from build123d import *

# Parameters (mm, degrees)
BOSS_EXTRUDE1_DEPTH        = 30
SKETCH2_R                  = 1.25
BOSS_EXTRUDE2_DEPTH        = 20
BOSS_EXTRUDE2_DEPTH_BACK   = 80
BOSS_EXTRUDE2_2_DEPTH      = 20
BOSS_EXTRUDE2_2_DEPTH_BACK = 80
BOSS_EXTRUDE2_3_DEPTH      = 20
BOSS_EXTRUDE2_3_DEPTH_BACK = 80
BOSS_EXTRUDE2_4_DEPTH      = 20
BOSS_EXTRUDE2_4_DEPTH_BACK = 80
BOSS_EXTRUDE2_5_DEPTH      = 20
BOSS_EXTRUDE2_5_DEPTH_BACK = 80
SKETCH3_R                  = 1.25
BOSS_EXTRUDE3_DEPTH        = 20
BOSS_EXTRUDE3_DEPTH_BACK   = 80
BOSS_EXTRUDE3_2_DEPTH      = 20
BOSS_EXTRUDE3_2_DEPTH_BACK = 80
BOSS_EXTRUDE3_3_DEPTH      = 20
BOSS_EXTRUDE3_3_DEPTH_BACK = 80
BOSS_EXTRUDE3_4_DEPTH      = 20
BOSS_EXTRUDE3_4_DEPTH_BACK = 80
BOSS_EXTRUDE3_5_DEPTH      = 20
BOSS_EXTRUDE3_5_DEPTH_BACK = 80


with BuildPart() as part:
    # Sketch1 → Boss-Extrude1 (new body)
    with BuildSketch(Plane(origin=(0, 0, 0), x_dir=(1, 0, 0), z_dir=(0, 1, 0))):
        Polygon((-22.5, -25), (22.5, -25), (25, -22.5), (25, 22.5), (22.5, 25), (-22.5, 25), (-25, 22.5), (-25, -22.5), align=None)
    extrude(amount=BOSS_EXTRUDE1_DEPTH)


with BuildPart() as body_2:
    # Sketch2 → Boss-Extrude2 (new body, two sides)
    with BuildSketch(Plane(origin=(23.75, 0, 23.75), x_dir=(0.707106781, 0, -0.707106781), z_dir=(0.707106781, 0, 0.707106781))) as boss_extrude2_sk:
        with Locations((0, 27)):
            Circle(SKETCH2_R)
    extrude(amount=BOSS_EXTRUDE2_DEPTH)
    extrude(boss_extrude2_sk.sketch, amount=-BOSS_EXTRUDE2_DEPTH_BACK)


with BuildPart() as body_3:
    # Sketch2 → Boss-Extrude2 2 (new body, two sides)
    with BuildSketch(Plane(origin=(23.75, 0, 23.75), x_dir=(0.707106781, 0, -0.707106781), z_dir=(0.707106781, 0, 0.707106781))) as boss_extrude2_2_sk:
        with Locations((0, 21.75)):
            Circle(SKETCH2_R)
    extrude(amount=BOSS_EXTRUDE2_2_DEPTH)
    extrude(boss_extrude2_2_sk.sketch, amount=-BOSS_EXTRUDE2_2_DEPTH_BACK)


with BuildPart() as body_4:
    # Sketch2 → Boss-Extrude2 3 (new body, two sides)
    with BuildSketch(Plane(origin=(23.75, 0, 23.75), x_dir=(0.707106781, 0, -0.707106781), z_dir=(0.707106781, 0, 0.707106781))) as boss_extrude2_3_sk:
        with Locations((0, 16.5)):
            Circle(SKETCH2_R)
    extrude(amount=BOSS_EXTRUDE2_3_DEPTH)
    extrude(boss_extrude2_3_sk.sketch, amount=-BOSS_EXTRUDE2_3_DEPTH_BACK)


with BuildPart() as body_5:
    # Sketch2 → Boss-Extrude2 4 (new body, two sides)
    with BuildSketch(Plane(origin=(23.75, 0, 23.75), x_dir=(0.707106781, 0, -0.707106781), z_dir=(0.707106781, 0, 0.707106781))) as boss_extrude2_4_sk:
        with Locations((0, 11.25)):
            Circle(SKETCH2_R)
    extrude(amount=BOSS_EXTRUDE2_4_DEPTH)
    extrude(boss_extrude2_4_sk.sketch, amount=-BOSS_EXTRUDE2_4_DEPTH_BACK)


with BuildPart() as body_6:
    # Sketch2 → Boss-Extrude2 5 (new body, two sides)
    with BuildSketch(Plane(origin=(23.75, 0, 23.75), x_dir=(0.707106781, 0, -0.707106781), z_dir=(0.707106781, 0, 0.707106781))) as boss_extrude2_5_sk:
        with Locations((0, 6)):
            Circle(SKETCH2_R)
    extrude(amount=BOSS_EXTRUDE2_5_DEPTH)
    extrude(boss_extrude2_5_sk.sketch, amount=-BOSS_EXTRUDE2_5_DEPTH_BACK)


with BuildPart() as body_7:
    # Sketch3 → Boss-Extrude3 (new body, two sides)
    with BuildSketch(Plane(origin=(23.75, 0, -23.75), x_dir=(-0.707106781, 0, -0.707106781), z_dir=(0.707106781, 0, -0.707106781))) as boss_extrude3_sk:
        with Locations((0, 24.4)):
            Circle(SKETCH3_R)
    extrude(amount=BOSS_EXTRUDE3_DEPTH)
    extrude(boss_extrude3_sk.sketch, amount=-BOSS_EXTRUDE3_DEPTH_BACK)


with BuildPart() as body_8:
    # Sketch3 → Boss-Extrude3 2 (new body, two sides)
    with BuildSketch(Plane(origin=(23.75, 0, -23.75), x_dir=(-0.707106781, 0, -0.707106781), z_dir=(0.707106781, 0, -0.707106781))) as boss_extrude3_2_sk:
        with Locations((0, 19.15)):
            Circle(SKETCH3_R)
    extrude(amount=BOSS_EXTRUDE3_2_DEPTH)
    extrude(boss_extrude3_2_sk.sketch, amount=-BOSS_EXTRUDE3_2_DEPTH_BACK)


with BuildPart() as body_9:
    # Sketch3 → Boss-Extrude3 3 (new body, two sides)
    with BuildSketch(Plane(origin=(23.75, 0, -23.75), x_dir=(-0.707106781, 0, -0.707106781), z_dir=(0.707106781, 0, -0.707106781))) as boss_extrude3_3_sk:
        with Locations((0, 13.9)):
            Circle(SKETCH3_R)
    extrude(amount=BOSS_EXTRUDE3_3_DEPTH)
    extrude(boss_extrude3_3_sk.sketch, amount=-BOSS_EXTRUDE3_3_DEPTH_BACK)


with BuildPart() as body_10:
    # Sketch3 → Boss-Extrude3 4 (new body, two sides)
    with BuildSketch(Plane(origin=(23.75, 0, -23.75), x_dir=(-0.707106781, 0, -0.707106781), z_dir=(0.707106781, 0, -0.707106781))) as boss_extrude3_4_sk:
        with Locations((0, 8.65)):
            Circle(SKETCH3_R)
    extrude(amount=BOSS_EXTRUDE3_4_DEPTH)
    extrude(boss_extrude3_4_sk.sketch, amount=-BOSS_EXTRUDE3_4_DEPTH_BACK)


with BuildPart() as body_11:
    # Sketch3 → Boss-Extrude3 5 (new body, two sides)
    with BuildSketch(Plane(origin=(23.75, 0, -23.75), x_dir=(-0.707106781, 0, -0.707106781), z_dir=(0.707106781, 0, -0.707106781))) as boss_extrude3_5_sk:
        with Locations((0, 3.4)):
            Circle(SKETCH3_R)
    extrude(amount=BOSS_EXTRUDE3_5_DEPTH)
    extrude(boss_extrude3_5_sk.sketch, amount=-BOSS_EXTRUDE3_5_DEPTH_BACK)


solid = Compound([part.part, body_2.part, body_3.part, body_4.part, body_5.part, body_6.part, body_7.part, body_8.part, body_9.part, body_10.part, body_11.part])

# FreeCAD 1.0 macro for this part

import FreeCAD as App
import Part
import Sketcher
Q = App.Units.Quantity


def add_polygon(sketch, points):
    """Adds a closed chain of lines whose ends are joined by coincident constraints."""
    first, n = sketch.GeometryCount, len(points)
    for a, b in zip(points, points[1:] + points[:1]):
        sketch.addGeometry(Part.LineSegment(App.Vector(*a, 0), App.Vector(*b, 0)), False)
    for i in range(n):
        sketch.addConstraint(Sketcher.Constraint("Coincident", first + i, 2, first + (i + 1) % n, 1))

doc = App.newDocument("Part")
params = doc.addObject("Spreadsheet::Sheet", "Params")
for row, (alias, value) in enumerate([
    ("sketch1_width", "45 mm"),
    ("pad1_length", "30 mm"),
    ("sketch2_diameter", "2.5 mm"),
    ("pad2_length", "20 mm"),
    ("pad2_length2", "80 mm"),
    ("sketch3_diameter", "2.5 mm"),
    ("pad3_length", "20 mm"),
    ("pad3_length2", "80 mm"),
    ("sketch4_diameter", "2.5 mm"),
    ("pad4_length", "20 mm"),
    ("pad4_length2", "80 mm"),
    ("sketch5_diameter", "2.5 mm"),
    ("pad5_length", "20 mm"),
    ("pad5_length2", "80 mm"),
    ("sketch6_diameter", "2.5 mm"),
    ("pad6_length", "20 mm"),
    ("pad6_length2", "80 mm"),
    ("sketch7_diameter", "2.5 mm"),
    ("pad7_length", "20 mm"),
    ("pad7_length2", "80 mm"),
    ("sketch8_diameter", "2.5 mm"),
    ("pad8_length", "20 mm"),
    ("pad8_length2", "80 mm"),
    ("sketch9_diameter", "2.5 mm"),
    ("pad9_length", "20 mm"),
    ("pad9_length2", "80 mm"),
    ("sketch10_diameter", "2.5 mm"),
    ("pad10_length", "20 mm"),
    ("pad10_length2", "80 mm"),
    ("sketch11_diameter", "2.5 mm"),
    ("pad11_length", "20 mm"),
    ("pad11_length2", "80 mm"),
], start=1):
    params.set(f"A{row}", alias)
    params.set(f"B{row}", "=" + value)
    params.setAlias(f"B{row}", alias)

body = doc.addObject("PartDesign::Body", "Body")

# Sketch on XZ plane
sketch1 = body.newObject("Sketcher::SketchObject", "Sketch")
sketch1.AttachmentSupport = (doc.getObject("XZ_Plane"), [""])
sketch1.MapMode = "FlatFace"
add_polygon(sketch1, [(-22.5, 25), (22.5, 25), (25, 22.5), (25, -22.5), (22.5, -25), (-22.5, -25), (-25, -22.5), (-25, 22.5)])  # lines 0-7
sketch1.addConstraint([
    Sketcher.Constraint("Horizontal", 0),
    Sketcher.Constraint("Vertical", 2),
    Sketcher.Constraint("Horizontal", 4),
    Sketcher.Constraint("Vertical", 6),
    Sketcher.Constraint("Symmetric", 0, 2, 4, 2, -1, 1),
    Sketcher.Constraint("Symmetric", 1, 2, 5, 2, -1, 1),
    Sketcher.Constraint("Perpendicular", 1, 3),
    Sketcher.Constraint("Perpendicular", 5, 7),
    Sketcher.Constraint("Horizontal", 2, 2, 5, 2),
    Sketcher.Constraint("Horizontal", 1, 2, 6, 2),
    Sketcher.Constraint("Vertical", 0, 2, 3, 2),
    Sketcher.Constraint("Equal", 4, 2),
    Sketcher.Constraint("DistanceX", 0, 1, 0, 2, Q("45 mm")),
    Sketcher.Constraint("DistanceY", -1, 1, 0, 2, Q("25 mm")),
])
sketch1.setExpression("Constraints[20]", "Params.sketch1_width")
pad1 = body.newObject("PartDesign::Pad", "Pad")
pad1.Profile = sketch1
pad1.setExpression("Length", "Params.pad1_length")
pad1.Reversed = True
body2 = doc.addObject("PartDesign::Body", "Body001")

# Sketch on an angled plane
sketch2 = body2.newObject("Sketcher::SketchObject", "Sketch001")
sketch2.Placement = App.Placement(App.Vector(23.75, 0, 23.75), App.Rotation(App.Vector(0.707106781, 0, -0.707106781), App.Vector(0, 0.999999999, 0), App.Vector(0.707106781, 0, 0.707106781), "ZXY"))
sketch2.addGeometry(Part.Circle(App.Vector(0, 27, 0), App.Vector(0, 0, 1), 1.2), False)
sketch2.addConstraint([
    Sketcher.Constraint("PointOnObject", 0, 3, -2),
    Sketcher.Constraint("Diameter", 0, Q("2.5 mm")),
    Sketcher.Constraint("DistanceY", -1, 1, 0, 3, Q("27 mm")),
])
sketch2.setExpression("Constraints[1]", "Params.sketch2_diameter")
pad2 = body2.newObject("PartDesign::Pad", "Pad001")
pad2.Profile = sketch2
pad2.Type = "TwoLengths"
pad2.setExpression("Length", "Params.pad2_length")
pad2.setExpression("Length2", "Params.pad2_length2")
body3 = doc.addObject("PartDesign::Body", "Body002")

# Sketch on an angled plane
sketch3 = body3.newObject("Sketcher::SketchObject", "Sketch002")
sketch3.Placement = App.Placement(App.Vector(23.75, 0, 23.75), App.Rotation(App.Vector(0.707106781, 0, -0.707106781), App.Vector(0, 0.999999999, 0), App.Vector(0.707106781, 0, 0.707106781), "ZXY"))
sketch3.addGeometry(Part.Circle(App.Vector(0, 21.7, 0), App.Vector(0, 0, 1), 1.2), False)
sketch3.addConstraint([
    Sketcher.Constraint("PointOnObject", 0, 3, -2),
    Sketcher.Constraint("Diameter", 0, Q("2.5 mm")),
    Sketcher.Constraint("DistanceY", -1, 1, 0, 3, Q("21.75 mm")),
])
sketch3.setExpression("Constraints[1]", "Params.sketch3_diameter")
pad3 = body3.newObject("PartDesign::Pad", "Pad002")
pad3.Profile = sketch3
pad3.Type = "TwoLengths"
pad3.setExpression("Length", "Params.pad3_length")
pad3.setExpression("Length2", "Params.pad3_length2")
body4 = doc.addObject("PartDesign::Body", "Body003")

# Sketch on an angled plane
sketch4 = body4.newObject("Sketcher::SketchObject", "Sketch003")
sketch4.Placement = App.Placement(App.Vector(23.75, 0, 23.75), App.Rotation(App.Vector(0.707106781, 0, -0.707106781), App.Vector(0, 0.999999999, 0), App.Vector(0.707106781, 0, 0.707106781), "ZXY"))
sketch4.addGeometry(Part.Circle(App.Vector(0, 16.5, 0), App.Vector(0, 0, 1), 1.2), False)
sketch4.addConstraint([
    Sketcher.Constraint("PointOnObject", 0, 3, -2),
    Sketcher.Constraint("Diameter", 0, Q("2.5 mm")),
    Sketcher.Constraint("DistanceY", -1, 1, 0, 3, Q("16.5 mm")),
])
sketch4.setExpression("Constraints[1]", "Params.sketch4_diameter")
pad4 = body4.newObject("PartDesign::Pad", "Pad003")
pad4.Profile = sketch4
pad4.Type = "TwoLengths"
pad4.setExpression("Length", "Params.pad4_length")
pad4.setExpression("Length2", "Params.pad4_length2")
body5 = doc.addObject("PartDesign::Body", "Body004")

# Sketch on an angled plane
sketch5 = body5.newObject("Sketcher::SketchObject", "Sketch004")
sketch5.Placement = App.Placement(App.Vector(23.75, 0, 23.75), App.Rotation(App.Vector(0.707106781, 0, -0.707106781), App.Vector(0, 0.999999999, 0), App.Vector(0.707106781, 0, 0.707106781), "ZXY"))
sketch5.addGeometry(Part.Circle(App.Vector(0, 11.2, 0), App.Vector(0, 0, 1), 1.2), False)
sketch5.addConstraint([
    Sketcher.Constraint("PointOnObject", 0, 3, -2),
    Sketcher.Constraint("Diameter", 0, Q("2.5 mm")),
    Sketcher.Constraint("DistanceY", -1, 1, 0, 3, Q("11.25 mm")),
])
sketch5.setExpression("Constraints[1]", "Params.sketch5_diameter")
pad5 = body5.newObject("PartDesign::Pad", "Pad004")
pad5.Profile = sketch5
pad5.Type = "TwoLengths"
pad5.setExpression("Length", "Params.pad5_length")
pad5.setExpression("Length2", "Params.pad5_length2")
body6 = doc.addObject("PartDesign::Body", "Body005")

# Sketch on an angled plane
sketch6 = body6.newObject("Sketcher::SketchObject", "Sketch005")
sketch6.Placement = App.Placement(App.Vector(23.75, 0, 23.75), App.Rotation(App.Vector(0.707106781, 0, -0.707106781), App.Vector(0, 0.999999999, 0), App.Vector(0.707106781, 0, 0.707106781), "ZXY"))
sketch6.addGeometry(Part.Circle(App.Vector(0, 6, 0), App.Vector(0, 0, 1), 1.2), False)
sketch6.addConstraint([
    Sketcher.Constraint("PointOnObject", 0, 3, -2),
    Sketcher.Constraint("Diameter", 0, Q("2.5 mm")),
    Sketcher.Constraint("DistanceY", -1, 1, 0, 3, Q("6 mm")),
])
sketch6.setExpression("Constraints[1]", "Params.sketch6_diameter")
pad6 = body6.newObject("PartDesign::Pad", "Pad005")
pad6.Profile = sketch6
pad6.Type = "TwoLengths"
pad6.setExpression("Length", "Params.pad6_length")
pad6.setExpression("Length2", "Params.pad6_length2")
body7 = doc.addObject("PartDesign::Body", "Body006")

# Sketch on an angled plane
sketch7 = body7.newObject("Sketcher::SketchObject", "Sketch006")
sketch7.Placement = App.Placement(App.Vector(23.75, 0, -23.75), App.Rotation(App.Vector(-0.707106781, 0, -0.707106781), App.Vector(0, 0.999999999, 0), App.Vector(0.707106781, 0, -0.707106781), "ZXY"))
sketch7.addGeometry(Part.Circle(App.Vector(0, 24.4, 0), App.Vector(0, 0, 1), 1.2), False)
sketch7.addConstraint([
    Sketcher.Constraint("PointOnObject", 0, 3, -2),
    Sketcher.Constraint("Diameter", 0, Q("2.5 mm")),
    Sketcher.Constraint("DistanceY", -1, 1, 0, 3, Q("24.4 mm")),
])
sketch7.setExpression("Constraints[1]", "Params.sketch7_diameter")
pad7 = body7.newObject("PartDesign::Pad", "Pad006")
pad7.Profile = sketch7
pad7.Type = "TwoLengths"
pad7.setExpression("Length", "Params.pad7_length")
pad7.setExpression("Length2", "Params.pad7_length2")
body8 = doc.addObject("PartDesign::Body", "Body007")

# Sketch on an angled plane
sketch8 = body8.newObject("Sketcher::SketchObject", "Sketch007")
sketch8.Placement = App.Placement(App.Vector(23.75, 0, -23.75), App.Rotation(App.Vector(-0.707106781, 0, -0.707106781), App.Vector(0, 0.999999999, 0), App.Vector(0.707106781, 0, -0.707106781), "ZXY"))
sketch8.addGeometry(Part.Circle(App.Vector(0, 19.1, 0), App.Vector(0, 0, 1), 1.2), False)
sketch8.addConstraint([
    Sketcher.Constraint("PointOnObject", 0, 3, -2),
    Sketcher.Constraint("Diameter", 0, Q("2.5 mm")),
    Sketcher.Constraint("DistanceY", -1, 1, 0, 3, Q("19.15 mm")),
])
sketch8.setExpression("Constraints[1]", "Params.sketch8_diameter")
pad8 = body8.newObject("PartDesign::Pad", "Pad007")
pad8.Profile = sketch8
pad8.Type = "TwoLengths"
pad8.setExpression("Length", "Params.pad8_length")
pad8.setExpression("Length2", "Params.pad8_length2")
body9 = doc.addObject("PartDesign::Body", "Body008")

# Sketch on an angled plane
sketch9 = body9.newObject("Sketcher::SketchObject", "Sketch008")
sketch9.Placement = App.Placement(App.Vector(23.75, 0, -23.75), App.Rotation(App.Vector(-0.707106781, 0, -0.707106781), App.Vector(0, 0.999999999, 0), App.Vector(0.707106781, 0, -0.707106781), "ZXY"))
sketch9.addGeometry(Part.Circle(App.Vector(0, 13.9, 0), App.Vector(0, 0, 1), 1.2), False)
sketch9.addConstraint([
    Sketcher.Constraint("PointOnObject", 0, 3, -2),
    Sketcher.Constraint("Diameter", 0, Q("2.5 mm")),
    Sketcher.Constraint("DistanceY", -1, 1, 0, 3, Q("13.9 mm")),
])
sketch9.setExpression("Constraints[1]", "Params.sketch9_diameter")
pad9 = body9.newObject("PartDesign::Pad", "Pad008")
pad9.Profile = sketch9
pad9.Type = "TwoLengths"
pad9.setExpression("Length", "Params.pad9_length")
pad9.setExpression("Length2", "Params.pad9_length2")
body10 = doc.addObject("PartDesign::Body", "Body009")

# Sketch on an angled plane
sketch10 = body10.newObject("Sketcher::SketchObject", "Sketch009")
sketch10.Placement = App.Placement(App.Vector(23.75, 0, -23.75), App.Rotation(App.Vector(-0.707106781, 0, -0.707106781), App.Vector(0, 0.999999999, 0), App.Vector(0.707106781, 0, -0.707106781), "ZXY"))
sketch10.addGeometry(Part.Circle(App.Vector(0, 8.6, 0), App.Vector(0, 0, 1), 1.2), False)
sketch10.addConstraint([
    Sketcher.Constraint("PointOnObject", 0, 3, -2),
    Sketcher.Constraint("Diameter", 0, Q("2.5 mm")),
    Sketcher.Constraint("DistanceY", -1, 1, 0, 3, Q("8.65 mm")),
])
sketch10.setExpression("Constraints[1]", "Params.sketch10_diameter")
pad10 = body10.newObject("PartDesign::Pad", "Pad009")
pad10.Profile = sketch10
pad10.Type = "TwoLengths"
pad10.setExpression("Length", "Params.pad10_length")
pad10.setExpression("Length2", "Params.pad10_length2")
body11 = doc.addObject("PartDesign::Body", "Body010")

# Sketch on an angled plane
sketch11 = body11.newObject("Sketcher::SketchObject", "Sketch010")
sketch11.Placement = App.Placement(App.Vector(23.75, 0, -23.75), App.Rotation(App.Vector(-0.707106781, 0, -0.707106781), App.Vector(0, 0.999999999, 0), App.Vector(0.707106781, 0, -0.707106781), "ZXY"))
sketch11.addGeometry(Part.Circle(App.Vector(0, 3.4, 0), App.Vector(0, 0, 1), 1.2), False)
sketch11.addConstraint([
    Sketcher.Constraint("PointOnObject", 0, 3, -2),
    Sketcher.Constraint("Diameter", 0, Q("2.5 mm")),
    Sketcher.Constraint("DistanceY", -1, 1, 0, 3, Q("3.4 mm")),
])
sketch11.setExpression("Constraints[1]", "Params.sketch11_diameter")
pad11 = body11.newObject("PartDesign::Pad", "Pad010")
pad11.Profile = sketch11
pad11.Type = "TwoLengths"
pad11.setExpression("Length", "Params.pad11_length")
pad11.setExpression("Length2", "Params.pad11_length2")

doc.recompute()
